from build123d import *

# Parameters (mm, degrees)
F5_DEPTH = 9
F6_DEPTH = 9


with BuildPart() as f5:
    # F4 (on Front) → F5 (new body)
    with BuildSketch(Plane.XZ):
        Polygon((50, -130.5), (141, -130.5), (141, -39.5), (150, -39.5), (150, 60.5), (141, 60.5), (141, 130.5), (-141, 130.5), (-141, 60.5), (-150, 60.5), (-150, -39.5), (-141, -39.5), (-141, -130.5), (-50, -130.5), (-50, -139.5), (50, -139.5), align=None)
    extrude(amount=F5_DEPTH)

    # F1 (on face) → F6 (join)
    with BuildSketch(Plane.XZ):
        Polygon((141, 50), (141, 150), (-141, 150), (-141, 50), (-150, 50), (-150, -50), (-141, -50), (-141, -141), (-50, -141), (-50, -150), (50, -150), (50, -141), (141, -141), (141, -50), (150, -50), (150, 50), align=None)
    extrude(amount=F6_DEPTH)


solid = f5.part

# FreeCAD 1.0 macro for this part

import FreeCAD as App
import Part
import Sketcher

V = App.Vector

doc = App.newDocument("Part")
body = doc.addObject("PartDesign::Body", "Body")

sketch1 = doc.addObject("Sketcher::SketchObject", "Sketch")
body.addObject(sketch1)
sketch1.AttachmentSupport = (doc.XZ_Plane, [""])
sketch1.MapMode = "FlatFace"
sketch1.addGeometry(Part.LineSegment(V(50, -130, 0), V(141, -130, 0)), False)
sketch1.addGeometry(Part.LineSegment(V(141, -130, 0), V(141, -40, 0)), False)
sketch1.addGeometry(Part.LineSegment(V(141, -40, 0), V(150, -40, 0)), False)
sketch1.addGeometry(Part.LineSegment(V(150, -40, 0), V(150, 60, 0)), False)
sketch1.addGeometry(Part.LineSegment(V(150, 60, 0), V(141, 60, 0)), False)
sketch1.addGeometry(Part.LineSegment(V(141, 60, 0), V(141, 130, 0)), False)
sketch1.addGeometry(Part.LineSegment(V(141, 130, 0), V(-141, 130, 0)), False)
sketch1.addGeometry(Part.LineSegment(V(-141, 130, 0), V(-141, 60, 0)), False)
sketch1.addGeometry(Part.LineSegment(V(-141, 60, 0), V(-150, 60, 0)), False)
sketch1.addGeometry(Part.LineSegment(V(-150, 60, 0), V(-150, -40, 0)), False)
sketch1.addGeometry(Part.LineSegment(V(-150, -40, 0), V(-141, -40, 0)), False)
sketch1.addGeometry(Part.LineSegment(V(-141, -40, 0), V(-141, -130, 0)), False)
sketch1.addGeometry(Part.LineSegment(V(-141, -130, 0), V(-50, -130, 0)), False)
sketch1.addGeometry(Part.LineSegment(V(-50, -130, 0), V(-50, -140, 0)), False)
sketch1.addGeometry(Part.LineSegment(V(-50, -140, 0), V(50, -140, 0)), False)
sketch1.addGeometry(Part.LineSegment(V(50, -140, 0), V(50, -130, 0)), False)
sketch1.addConstraint(Sketcher.Constraint("Coincident", 0, 2, 1, 1))
sketch1.addConstraint(Sketcher.Constraint("Coincident", 1, 2, 2, 1))
sketch1.addConstraint(Sketcher.Constraint("Coincident", 2, 2, 3, 1))
sketch1.addConstraint(Sketcher.Constraint("Coincident", 3, 2, 4, 1))
sketch1.addConstraint(Sketcher.Constraint("Coincident", 4, 2, 5, 1))
sketch1.addConstraint(Sketcher.Constraint("Coincident", 5, 2, 6, 1))
sketch1.addConstraint(Sketcher.Constraint("Coincident", 6, 2, 7, 1))
sketch1.addConstraint(Sketcher.Constraint("Coincident", 7, 2, 8, 1))
sketch1.addConstraint(Sketcher.Constraint("Coincident", 8, 2, 9, 1))
sketch1.addConstraint(Sketcher.Constraint("Coincident", 9, 2, 10, 1))
sketch1.addConstraint(Sketcher.Constraint("Coincident", 10, 2, 11, 1))
sketch1.addConstraint(Sketcher.Constraint("Coincident", 11, 2, 12, 1))
sketch1.addConstraint(Sketcher.Constraint("Coincident", 12, 2, 13, 1))
sketch1.addConstraint(Sketcher.Constraint("Coincident", 13, 2, 14, 1))
sketch1.addConstraint(Sketcher.Constraint("Coincident", 14, 2, 15, 1))
sketch1.addConstraint(Sketcher.Constraint("Coincident", 15, 2, 0, 1))
sketch1.addConstraint(Sketcher.Constraint("Horizontal", 0))
sketch1.addConstraint(Sketcher.Constraint("Vertical", 1))
sketch1.addConstraint(Sketcher.Constraint("Horizontal", 2))
sketch1.addConstraint(Sketcher.Constraint("Vertical", 3))
sketch1.addConstraint(Sketcher.Constraint("Horizontal", 4))
sketch1.addConstraint(Sketcher.Constraint("Vertical", 5))
sketch1.addConstraint(Sketcher.Constraint("Horizontal", 6))
sketch1.addConstraint(Sketcher.Constraint("Vertical", 7))
sketch1.addConstraint(Sketcher.Constraint("Horizontal", 8))
sketch1.addConstraint(Sketcher.Constraint("Vertical", 9))
sketch1.addConstraint(Sketcher.Constraint("Horizontal", 10))
sketch1.addConstraint(Sketcher.Constraint("Vertical", 11))
sketch1.addConstraint(Sketcher.Constraint("Horizontal", 12))
sketch1.addConstraint(Sketcher.Constraint("Vertical", 13))
sketch1.addConstraint(Sketcher.Constraint("Horizontal", 14))
sketch1.addConstraint(Sketcher.Constraint("Vertical", 15))
sketch1.addConstraint(Sketcher.Constraint("Symmetric", 0, 2, 6, 2, -1, 1))
sketch1.addConstraint(Sketcher.Constraint("Symmetric", 5, 2, 11, 2, -1, 1))
sketch1.addConstraint(Sketcher.Constraint("Symmetric", 4, 2, 7, 2, -2))
sketch1.addConstraint(Sketcher.Constraint("Symmetric", 2, 2, 9, 2, -2))
sketch1.addConstraint(Sketcher.Constraint("Equal", 0, 12))
sketch1.addConstraint(Sketcher.Constraint("Equal", 12, 1))
sketch1.addConstraint(Sketcher.Constraint("Equal", 14, 3))
sketch1.addConstraint(Sketcher.Constraint("Equal", 10, 13))
sketch1.addConstraint(Sketcher.Constraint("DistanceX", 0, 1, 0, 2, 91.0))
sketch1.addConstraint(Sketcher.Constraint("DistanceX", 2, 1, 2, 2, 9.0))
sketch1.addConstraint(Sketcher.Constraint("DistanceX", 6, 2, 6, 1, 282.0))
sketch1.addConstraint(Sketcher.Constraint("DistanceY", 5, 1, 5, 2, 70.0))
pad1 = doc.addObject("PartDesign::Pad", "Pad")
body.addObject(pad1)
pad1.Profile = sketch1
pad1.Length = 9

sketch2 = doc.addObject("Sketcher::SketchObject", "Sketch001")
body.addObject(sketch2)
sketch2.AttachmentSupport = (doc.XZ_Plane, [""])
sketch2.MapMode = "FlatFace"
sketch2.addGeometry(Part.LineSegment(V(141, 50, 0), V(141, 150, 0)), False)
sketch2.addGeometry(Part.LineSegment(V(141, 150, 0), V(-141, 150, 0)), False)
sketch2.addGeometry(Part.LineSegment(V(-141, 150, 0), V(-141, 50, 0)), False)
sketch2.addGeometry(Part.LineSegment(V(-141, 50, 0), V(-150, 50, 0)), False)
sketch2.addGeometry(Part.LineSegment(V(-150, 50, 0), V(-150, -50, 0)), False)
sketch2.addGeometry(Part.LineSegment(V(-150, -50, 0), V(-141, -50, 0)), False)
sketch2.addGeometry(Part.LineSegment(V(-141, -50, 0), V(-141, -141, 0)), False)
sketch2.addGeometry(Part.LineSegment(V(-141, -141, 0), V(-50, -141, 0)), False)
sketch2.addGeometry(Part.LineSegment(V(-50, -141, 0), V(-50, -150, 0)), False)
sketch2.addGeometry(Part.LineSegment(V(-50, -150, 0), V(50, -150, 0)), False)
sketch2.addGeometry(Part.LineSegment(V(50, -150, 0), V(50, -141, 0)), False)
sketch2.addGeometry(Part.LineSegment(V(50, -141, 0), V(141, -141, 0)), False)
sketch2.addGeometry(Part.LineSegment(V(141, -141, 0), V(141, -50, 0)), False)
sketch2.addGeometry(Part.LineSegment(V(141, -50, 0), V(150, -50, 0)), False)
sketch2.addGeometry(Part.LineSegment(V(150, -50, 0), V(150, 50, 0)), False)
sketch2.addGeometry(Part.LineSegment(V(150, 50, 0), V(141, 50, 0)), False)
sketch2.addConstraint(Sketcher.Constraint("Coincident", 0, 2, 1, 1))
sketch2.addConstraint(Sketcher.Constraint("Coincident", 1, 2, 2, 1))
sketch2.addConstraint(Sketcher.Constraint("Coincident", 2, 2, 3, 1))
sketch2.addConstraint(Sketcher.Constraint("Coincident", 3, 2, 4, 1))
sketch2.addConstraint(Sketcher.Constraint("Coincident", 4, 2, 5, 1))
sketch2.addConstraint(Sketcher.Constraint("Coincident", 5, 2, 6, 1))
sketch2.addConstraint(Sketcher.Constraint("Coincident", 6, 2, 7, 1))
sketch2.addConstraint(Sketcher.Constraint("Coincident", 7, 2, 8, 1))
sketch2.addConstraint(Sketcher.Constraint("Coincident", 8, 2, 9, 1))
sketch2.addConstraint(Sketcher.Constraint("Coincident", 9, 2, 10, 1))
sketch2.addConstraint(Sketcher.Constraint("Coincident", 10, 2, 11, 1))
sketch2.addConstraint(Sketcher.Constraint("Coincident", 11, 2, 12, 1))
sketch2.addConstraint(Sketcher.Constraint("Coincident", 12, 2, 13, 1))
sketch2.addConstraint(Sketcher.Constraint("Coincident", 13, 2, 14, 1))
sketch2.addConstraint(Sketcher.Constraint("Coincident", 14, 2, 15, 1))
sketch2.addConstraint(Sketcher.Constraint("Coincident", 15, 2, 0, 1))
sketch2.addConstraint(Sketcher.Constraint("Vertical", 0))
sketch2.addConstraint(Sketcher.Constraint("Horizontal", 1))
sketch2.addConstraint(Sketcher.Constraint("Vertical", 2))
sketch2.addConstraint(Sketcher.Constraint("Horizontal", 3))
sketch2.addConstraint(Sketcher.Constraint("Vertical", 4))
sketch2.addConstraint(Sketcher.Constraint("Horizontal", 5))
sketch2.addConstraint(Sketcher.Constraint("Vertical", 6))
sketch2.addConstraint(Sketcher.Constraint("Horizontal", 7))
sketch2.addConstraint(Sketcher.Constraint("Vertical", 8))
sketch2.addConstraint(Sketcher.Constraint("Horizontal", 9))
sketch2.addConstraint(Sketcher.Constraint("Vertical", 10))
sketch2.addConstraint(Sketcher.Constraint("Horizontal", 11))
sketch2.addConstraint(Sketcher.Constraint("Vertical", 12))
sketch2.addConstraint(Sketcher.Constraint("Horizontal", 13))
sketch2.addConstraint(Sketcher.Constraint("Vertical", 14))
sketch2.addConstraint(Sketcher.Constraint("Horizontal", 15))
sketch2.addConstraint(Sketcher.Constraint("Symmetric", 2, 2, 12, 2, -1, 1))
sketch2.addConstraint(Sketcher.Constraint("Symmetric", 4, 2, 14, 2, -1, 1))
sketch2.addConstraint(Sketcher.Constraint("Symmetric", 7, 2, 10, 2, -2))
sketch2.addConstraint(Sketcher.Constraint("Symmetric", 5, 2, 12, 2, -2))
sketch2.addConstraint(Sketcher.Constraint("Vertical", 0, 2, 11, 2))
sketch2.addConstraint(Sketcher.Constraint("Equal", 9, 0))
sketch2.addConstraint(Sketcher.Constraint("Equal", 2, 4))
sketch2.addConstraint(Sketcher.Constraint("Equal", 11, 6))
sketch2.addConstraint(Sketcher.Constraint("Equal", 15, 8))
sketch2.addConstraint(Sketcher.Constraint("DistanceX", 1, 2, 1, 1, 282.0))
sketch2.addConstraint(Sketcher.Constraint("DistanceX", 3, 2, 3, 1, 9.0))
sketch2.addConstraint(Sketcher.Constraint("DistanceX", 7, 1, 7, 2, 91.0))
pad2 = doc.addObject("PartDesign::Pad", "Pad001")
body.addObject(pad2)
pad2.Profile = sketch2
pad2.Length = 9

doc.recompute()
